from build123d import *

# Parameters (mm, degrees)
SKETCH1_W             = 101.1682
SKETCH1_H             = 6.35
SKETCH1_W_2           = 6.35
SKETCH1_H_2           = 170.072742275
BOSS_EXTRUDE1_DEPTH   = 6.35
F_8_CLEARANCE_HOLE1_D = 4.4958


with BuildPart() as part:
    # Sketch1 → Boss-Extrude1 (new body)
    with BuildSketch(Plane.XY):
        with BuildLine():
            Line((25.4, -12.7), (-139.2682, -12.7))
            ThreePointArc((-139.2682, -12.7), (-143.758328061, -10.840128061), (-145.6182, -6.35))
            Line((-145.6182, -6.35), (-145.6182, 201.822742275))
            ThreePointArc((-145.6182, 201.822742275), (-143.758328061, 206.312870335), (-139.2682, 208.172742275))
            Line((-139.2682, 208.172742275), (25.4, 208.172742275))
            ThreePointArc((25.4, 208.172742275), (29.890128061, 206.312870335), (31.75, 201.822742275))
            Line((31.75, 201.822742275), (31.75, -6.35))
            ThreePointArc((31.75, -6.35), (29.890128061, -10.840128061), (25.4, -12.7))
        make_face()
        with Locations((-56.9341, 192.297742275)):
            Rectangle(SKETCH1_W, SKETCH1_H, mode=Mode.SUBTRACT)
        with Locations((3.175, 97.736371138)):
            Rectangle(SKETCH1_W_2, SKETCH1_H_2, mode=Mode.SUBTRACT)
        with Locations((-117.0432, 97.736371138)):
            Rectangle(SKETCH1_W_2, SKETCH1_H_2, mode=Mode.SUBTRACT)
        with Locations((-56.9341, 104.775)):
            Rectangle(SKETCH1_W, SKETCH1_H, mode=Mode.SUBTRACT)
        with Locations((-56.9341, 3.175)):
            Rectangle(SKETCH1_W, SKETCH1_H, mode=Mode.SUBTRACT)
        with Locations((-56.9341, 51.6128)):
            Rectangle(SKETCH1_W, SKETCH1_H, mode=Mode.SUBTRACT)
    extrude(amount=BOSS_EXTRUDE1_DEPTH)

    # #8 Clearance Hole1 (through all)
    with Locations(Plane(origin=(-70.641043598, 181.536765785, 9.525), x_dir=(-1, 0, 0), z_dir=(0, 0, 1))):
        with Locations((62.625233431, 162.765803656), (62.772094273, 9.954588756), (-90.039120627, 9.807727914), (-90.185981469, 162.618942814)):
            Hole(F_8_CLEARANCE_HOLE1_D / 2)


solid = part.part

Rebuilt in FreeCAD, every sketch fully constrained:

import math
import FreeCAD as App
import Part
import Sketcher

V = App.Vector
Q = App.Units.Quantity

doc = App.newDocument("Part")
body = doc.addObject("PartDesign::Body", "Body")

# Sketch on XY plane
sketch1 = body.newObject("Sketcher::SketchObject", "Sketch")
sketch1.AttachmentSupport = (doc.getObject("XY_Plane"), [""])
sketch1.MapMode = "FlatFace"
sketch1.addGeometry(Part.LineSegment(V(-139, -13, 0), V(25, -13, 0)), False)
sketch1.addGeometry(Part.ArcOfCircle(Part.Circle(V(25, -6, 0), V(0, 0, 1), 6), math.radians(-90), math.radians(0)), False)
sketch1.addGeometry(Part.LineSegment(V(32, -6, 0), V(32, 202, 0)), False)
sketch1.addGeometry(Part.ArcOfCircle(Part.Circle(V(25, 202, 0), V(0, 0, 1), 6), math.radians(0), math.radians(90)), False)
sketch1.addGeometry(Part.LineSegment(V(25, 208, 0), V(-139, 208, 0)), False)
sketch1.addGeometry(Part.ArcOfCircle(Part.Circle(V(-139, 202, 0), V(0, 0, 1), 6), math.radians(90), math.radians(180)), False)
sketch1.addGeometry(Part.LineSegment(V(-146, 202, 0), V(-146, -6, 0)), False)
sketch1.addGeometry(Part.ArcOfCircle(Part.Circle(V(-139, -6, 0), V(0, 0, 1), 6), math.radians(180), math.radians(270)), False)
sketch1.addGeometry(Part.LineSegment(V(-108, 0, 0), V(-108, 6, 0)), False)
sketch1.addGeometry(Part.LineSegment(V(-108, 6, 0), V(-6, 6, 0)), False)
sketch1.addGeometry(Part.LineSegment(V(-6, 6, 0), V(-6, 0, 0)), False)
sketch1.addGeometry(Part.LineSegment(V(-6, 0, 0), V(-108, 0, 0)), False)
sketch1.addGeometry(Part.LineSegment(V(-108, 48, 0), V(-108, 55, 0)), False)
sketch1.addGeometry(Part.LineSegment(V(-108, 55, 0), V(-6, 55, 0)), False)
sketch1.addGeometry(Part.LineSegment(V(-6, 55, 0), V(-6, 48, 0)), False)
sketch1.addGeometry(Part.LineSegment(V(-6, 48, 0), V(-108, 48, 0)), False)
sketch1.addGeometry(Part.LineSegment(V(0, 13, 0), V(0, 183, 0)), False)
sketch1.addGeometry(Part.LineSegment(V(0, 183, 0), V(6, 183, 0)), False)
sketch1.addGeometry(Part.LineSegment(V(6, 183, 0), V(6, 13, 0)), False)
sketch1.addGeometry(Part.LineSegment(V(6, 13, 0), V(0, 13, 0)), False)
sketch1.addGeometry(Part.LineSegment(V(-108, 102, 0), V(-108, 108, 0)), False)
sketch1.addGeometry(Part.LineSegment(V(-108, 108, 0), V(-6, 108, 0)), False)
sketch1.addGeometry(Part.LineSegment(V(-6, 108, 0), V(-6, 102, 0)), False)
sketch1.addGeometry(Part.LineSegment(V(-6, 102, 0), V(-108, 102, 0)), False)
sketch1.addGeometry(Part.LineSegment(V(-120, 13, 0), V(-120, 183, 0)), False)
sketch1.addGeometry(Part.LineSegment(V(-120, 183, 0), V(-114, 183, 0)), False)
sketch1.addGeometry(Part.LineSegment(V(-114, 183, 0), V(-114, 13, 0)), False)
sketch1.addGeometry(Part.LineSegment(V(-114, 13, 0), V(-120, 13, 0)), False)
sketch1.addGeometry(Part.LineSegment(V(-108, 189, 0), V(-108, 195, 0)), False)
sketch1.addGeometry(Part.LineSegment(V(-108, 195, 0), V(-6, 195, 0)), False)
sketch1.addGeometry(Part.LineSegment(V(-6, 195, 0), V(-6, 189, 0)), False)
sketch1.addGeometry(Part.LineSegment(V(-6, 189, 0), V(-108, 189, 0)), False)
sketch1.addConstraint(Sketcher.Constraint("Tangent", 0, 2, 1, 1))
sketch1.addConstraint(Sketcher.Constraint("Tangent", 1, 2, 2, 1))
sketch1.addConstraint(Sketcher.Constraint("Tangent", 2, 2, 3, 1))
sketch1.addConstraint(Sketcher.Constraint("Tangent", 3, 2, 4, 1))
sketch1.addConstraint(Sketcher.Constraint("Tangent", 4, 2, 5, 1))
sketch1.addConstraint(Sketcher.Constraint("Tangent", 5, 2, 6, 1))
sketch1.addConstraint(Sketcher.Constraint("Tangent", 6, 2, 7, 1))
sketch1.addConstraint(Sketcher.Constraint("Tangent", 7, 2, 0, 1))
sketch1.addConstraint(Sketcher.Constraint("Coincident", 8, 2, 9, 1))
sketch1.addConstraint(Sketcher.Constraint("Coincident", 9, 2, 10, 1))
sketch1.addConstraint(Sketcher.Constraint("Coincident", 10, 2, 11, 1))
sketch1.addConstraint(Sketcher.Constraint("Coincident", 11, 2, 8, 1))
sketch1.addConstraint(Sketcher.Constraint("Coincident", 12, 2, 13, 1))
sketch1.addConstraint(Sketcher.Constraint("Coincident", 13, 2, 14, 1))
sketch1.addConstraint(Sketcher.Constraint("Coincident", 14, 2, 15, 1))
sketch1.addConstraint(Sketcher.Constraint("Coincident", 15, 2, 12, 1))
sketch1.addConstraint(Sketcher.Constraint("Coincident", 16, 2, 17, 1))
sketch1.addConstraint(Sketcher.Constraint("Coincident", 17, 2, 18, 1))
sketch1.addConstraint(Sketcher.Constraint("Coincident", 18, 2, 19, 1))
sketch1.addConstraint(Sketcher.Constraint("Coincident", 19, 2, 16, 1))
sketch1.addConstraint(Sketcher.Constraint("Coincident", 20, 2, 21, 1))
sketch1.addConstraint(Sketcher.Constraint("Coincident", 21, 2, 22, 1))
sketch1.addConstraint(Sketcher.Constraint("Coincident", 22, 2, 23, 1))
sketch1.addConstraint(Sketcher.Constraint("Coincident", 23, 2, 20, 1))
sketch1.addConstraint(Sketcher.Constraint("Coincident", 24, 2, 25, 1))
sketch1.addConstraint(Sketcher.Constraint("Coincident", 25, 2, 26, 1))
sketch1.addConstraint(Sketcher.Constraint("Coincident", 26, 2, 27, 1))
sketch1.addConstraint(Sketcher.Constraint("Coincident", 27, 2, 24, 1))
sketch1.addConstraint(Sketcher.Constraint("Coincident", 28, 2, 29, 1))
sketch1.addConstraint(Sketcher.Constraint("Coincident", 29, 2, 30, 1))
sketch1.addConstraint(Sketcher.Constraint("Coincident", 30, 2, 31, 1))
sketch1.addConstraint(Sketcher.Constraint("Coincident", 31, 2, 28, 1))
sketch1.addConstraint(Sketcher.Constraint("Horizontal", 0))
sketch1.addConstraint(Sketcher.Constraint("Vertical", 2))
sketch1.addConstraint(Sketcher.Constraint("Horizontal", 4))
sketch1.addConstraint(Sketcher.Constraint("Vertical", 6))
sketch1.addConstraint(Sketcher.Constraint("Vertical", 8))
sketch1.addConstraint(Sketcher.Constraint("Horizontal", 9))
sketch1.addConstraint(Sketcher.Constraint("Vertical", 10))
sketch1.addConstraint(Sketcher.Constraint("Horizontal", 11))
sketch1.addConstraint(Sketcher.Constraint("Vertical", 12))
sketch1.addConstraint(Sketcher.Constraint("Horizontal", 13))
sketch1.addConstraint(Sketcher.Constraint("Vertical", 14))
sketch1.addConstraint(Sketcher.Constraint("Horizontal", 15))
sketch1.addConstraint(Sketcher.Constraint("Vertical", 16))
sketch1.addConstraint(Sketcher.Constraint("Horizontal", 17))
sketch1.addConstraint(Sketcher.Constraint("Vertical", 18))
sketch1.addConstraint(Sketcher.Constraint("Horizontal", 19))
sketch1.addConstraint(Sketcher.Constraint("Vertical", 20))
sketch1.addConstraint(Sketcher.Constraint("Horizontal", 21))
sketch1.addConstraint(Sketcher.Constraint("Vertical", 22))
sketch1.addConstraint(Sketcher.Constraint("Horizontal", 23))
sketch1.addConstraint(Sketcher.Constraint("Vertical", 24))
sketch1.addConstraint(Sketcher.Constraint("Horizontal", 25))
sketch1.addConstraint(Sketcher.Constraint("Vertical", 26))
sketch1.addConstraint(Sketcher.Constraint("Horizontal", 27))
sketch1.addConstraint(Sketcher.Constraint("Vertical", 28))
sketch1.addConstraint(Sketcher.Constraint("Horizontal", 29))
sketch1.addConstraint(Sketcher.Constraint("Vertical", 30))
sketch1.addConstraint(Sketcher.Constraint("Horizontal", 31))
sketch1.addConstraint(Sketcher.Constraint("Equal", 1, 3))
sketch1.addConstraint(Sketcher.Constraint("Equal", 3, 5))
sketch1.addConstraint(Sketcher.Constraint("Equal", 5, 7))
sketch1.addConstraint(Sketcher.Constraint("PointOnObject", 10, 2, -1))
sketch1.addConstraint(Sketcher.Constraint("PointOnObject", 16, 2, -2))
sketch1.addConstraint(Sketcher.Constraint("Horizontal", 17, 2, 24, 2))
sketch1.addConstraint(Sketcher.Constraint("Horizontal", 19, 2, 26, 2))
sketch1.addConstraint(Sketcher.Constraint("Vertical", 11, 2, 12, 2))
sketch1.addConstraint(Sketcher.Constraint("Vertical", 10, 2, 13, 2))
sketch1.addConstraint(Sketcher.Constraint("Vertical", 15, 2, 20, 2))
sketch1.addConstraint(Sketcher.Constraint("Vertical", 14, 2, 21, 2))
sketch1.addConstraint(Sketcher.Constraint("Vertical", 23, 2, 28, 2))
sketch1.addConstraint(Sketcher.Constraint("Vertical", 22, 2, 29, 2))
sketch1.addConstraint(Sketcher.Constraint("Equal", 19, 25))
sketch1.addConstraint(Sketcher.Constraint("Equal", 27, 8))
sketch1.addConstraint(Sketcher.Constraint("Equal", 10, 12))
sketch1.addConstraint(Sketcher.Constraint("Equal", 14, 20))
sketch1.addConstraint(Sketcher.Constraint("Equal", 22, 28))
sketch1.addConstraint(Sketcher.Constraint("Radius", 1, Q("0.25 in")))
sketch1.addConstraint(Sketcher.Constraint("DistanceX", -1, 1, 1, 3, Q("1 in")))
sketch1.addConstraint(Sketcher.Constraint("DistanceY", -1, 1, 22, 2, Q("4 in")))
sketch1.addConstraint(Sketcher.Constraint("DistanceY", 16, 2, 3, 2, Q("1 in")))
sketch1.addConstraint(Sketcher.Constraint("DistanceX", 17, 2, 2, 2, Q("1 in")))
sketch1.addConstraint(Sketcher.Constraint("DistanceY", 0, 2, 18, 2, Q("1 in")))
sketch1.addConstraint(Sketcher.Constraint("DistanceX", 5, 2, 24, 2, Q("1 in")))
sketch1.addConstraint(Sketcher.Constraint("DistanceY", 0, 2, -1, 1, Q("0.5 in")))
sketch1.addConstraint(Sketcher.Constraint("DistanceX", 6, 2, 8, 2, Q("1.5 in")))
sketch1.addConstraint(Sketcher.Constraint("DistanceX", 9, 2, 1, 2, Q("1.5 in")))
sketch1.addConstraint(Sketcher.Constraint("DistanceY", 25, 2, 28, 2, Q("0.5 in")))
sketch1.addConstraint(Sketcher.Constraint("DistanceX", 0, 1, 0, 2, Q("6.483 in")))
sketch1.addConstraint(Sketcher.Constraint("DistanceY", -1, 1, 12, 2, Q("2.157 in")))
sketch1.addConstraint(Sketcher.Constraint("DistanceY", 2, 1, 2, 2, Q("208.172742 mm")))
pad1 = body.newObject("PartDesign::Pad", "Pad")
pad1.Profile = sketch1
pad1.Length = Q("0.25 in")

# Sketch on XY plane
sketch2 = body.newObject("Sketcher::SketchObject", "Sketch001")
sketch2.AttachmentSupport = (doc.getObject("XY_Plane"), [""])
sketch2.MapMode = "FlatFace"
sketch2.AttachmentOffset = App.Placement(V(0, 0, 0.375 * 25.4), App.Rotation())
sketch2.addGeometry(Part.Circle(V(-133.3, 18.8, 0), V(0, 0, 1), 2.2), False)
sketch2.addGeometry(Part.Circle(V(-133.4, 171.6, 0), V(0, 0, 1), 2.2), False)
sketch2.addGeometry(Part.Circle(V(19.4, 171.7, 0), V(0, 0, 1), 2.2), False)
sketch2.addGeometry(Part.Circle(V(19.5, 18.9, 0), V(0, 0, 1), 2.2), False)
sketch2.addConstraint(Sketcher.Constraint("Equal", 0, 1))
sketch2.addConstraint(Sketcher.Constraint("Equal", 1, 2))
sketch2.addConstraint(Sketcher.Constraint("Equal", 2, 3))
sketch2.addConstraint(Sketcher.Constraint("Diameter", 0, Q("0.177 in")))
sketch2.addConstraint(Sketcher.Constraint("DistanceX", 1, 3, 0, 3, Q("0.146861 mm")))
sketch2.addConstraint(Sketcher.Constraint("DistanceY", 1, 3, 2, 3, Q("0.146861 mm")))
sketch2.addConstraint(Sketcher.Constraint("DistanceY", 0, 3, 3, 3, Q("0.146861 mm")))
sketch2.addConstraint(Sketcher.Constraint("DistanceX", 2, 3, 3, 3, Q("0.146861 mm")))
sketch2.addConstraint(Sketcher.Constraint("DistanceX", 0, 3, -1, 1, Q("133.266277 mm")))
sketch2.addConstraint(Sketcher.Constraint("DistanceY", -1, 1, 0, 3, Q("18.770962 mm")))
sketch2.addConstraint(Sketcher.Constraint("DistanceY", -1, 1, 1, 3, Q("171.582177 mm")))
sketch2.addConstraint(Sketcher.Constraint("DistanceX", -1, 1, 2, 3, Q("19.398077 mm")))
doc.recompute()
hole = body.newObject("PartDesign::Hole", "Hole")
hole.Profile = sketch2
hole.ThreadType = "None"
hole.Diameter = Q("0.177 in")
hole.DepthType = "ThroughAll"

doc.recompute()
